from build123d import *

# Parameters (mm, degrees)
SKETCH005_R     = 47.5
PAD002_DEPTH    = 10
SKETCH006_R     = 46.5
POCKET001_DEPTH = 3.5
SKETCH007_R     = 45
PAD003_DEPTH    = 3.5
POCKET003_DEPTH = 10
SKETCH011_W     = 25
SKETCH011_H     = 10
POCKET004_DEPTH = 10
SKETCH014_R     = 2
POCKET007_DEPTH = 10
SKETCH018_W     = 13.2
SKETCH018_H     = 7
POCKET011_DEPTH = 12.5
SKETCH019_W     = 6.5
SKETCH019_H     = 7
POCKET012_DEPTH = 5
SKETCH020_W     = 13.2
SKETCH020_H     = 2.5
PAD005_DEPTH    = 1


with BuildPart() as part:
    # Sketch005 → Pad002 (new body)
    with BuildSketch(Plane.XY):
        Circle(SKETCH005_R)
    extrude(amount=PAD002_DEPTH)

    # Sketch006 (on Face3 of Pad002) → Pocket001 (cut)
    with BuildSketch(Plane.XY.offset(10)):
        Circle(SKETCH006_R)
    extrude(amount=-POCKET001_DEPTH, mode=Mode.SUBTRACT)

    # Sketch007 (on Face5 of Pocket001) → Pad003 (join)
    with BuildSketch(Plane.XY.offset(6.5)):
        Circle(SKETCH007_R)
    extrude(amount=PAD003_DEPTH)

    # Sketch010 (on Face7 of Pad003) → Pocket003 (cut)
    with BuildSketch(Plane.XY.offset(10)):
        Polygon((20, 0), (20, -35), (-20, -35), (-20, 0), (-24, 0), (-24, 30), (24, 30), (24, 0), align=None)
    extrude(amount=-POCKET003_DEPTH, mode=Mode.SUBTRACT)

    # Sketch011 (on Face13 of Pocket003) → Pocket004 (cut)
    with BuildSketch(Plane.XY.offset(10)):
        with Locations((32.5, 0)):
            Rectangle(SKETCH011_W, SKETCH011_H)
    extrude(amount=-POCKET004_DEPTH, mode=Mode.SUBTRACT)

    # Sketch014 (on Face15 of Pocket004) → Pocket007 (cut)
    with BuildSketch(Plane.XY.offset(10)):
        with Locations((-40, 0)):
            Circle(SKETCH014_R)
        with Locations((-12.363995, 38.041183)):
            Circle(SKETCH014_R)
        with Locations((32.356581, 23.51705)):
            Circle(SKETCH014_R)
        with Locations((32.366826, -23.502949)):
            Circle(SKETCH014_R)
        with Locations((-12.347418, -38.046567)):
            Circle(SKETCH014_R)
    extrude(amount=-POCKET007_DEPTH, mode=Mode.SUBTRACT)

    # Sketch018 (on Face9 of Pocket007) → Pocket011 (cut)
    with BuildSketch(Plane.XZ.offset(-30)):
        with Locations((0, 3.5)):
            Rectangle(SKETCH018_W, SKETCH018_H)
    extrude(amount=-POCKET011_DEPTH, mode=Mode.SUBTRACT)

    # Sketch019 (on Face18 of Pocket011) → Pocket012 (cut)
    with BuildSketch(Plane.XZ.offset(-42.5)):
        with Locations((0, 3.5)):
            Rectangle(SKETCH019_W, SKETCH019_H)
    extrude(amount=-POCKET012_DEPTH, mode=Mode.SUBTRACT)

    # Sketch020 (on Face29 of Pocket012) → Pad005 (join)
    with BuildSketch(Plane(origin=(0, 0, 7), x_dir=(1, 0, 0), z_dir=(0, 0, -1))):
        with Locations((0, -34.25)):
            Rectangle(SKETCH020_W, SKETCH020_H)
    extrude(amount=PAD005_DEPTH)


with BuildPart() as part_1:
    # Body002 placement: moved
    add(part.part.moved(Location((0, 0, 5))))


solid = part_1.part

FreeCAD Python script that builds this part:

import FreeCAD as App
import Part
import Sketcher
from FreeCAD import Vector

doc = App.newDocument("Part")
body = doc.addObject("PartDesign::Body", "Body")

# Sketch on XY plane
sketch1 = body.newObject("Sketcher::SketchObject", "Sketch")
sketch1.AttachmentSupport = (doc.getObject("XY_Plane"), [""])
sketch1.MapMode = "FlatFace"
sketch1.addGeometry(Part.Circle(Vector(0, 0, 0), Vector(0, 0, 1), 48), False)
sketch1.addConstraint([
    Sketcher.Constraint("Coincident", 0, 3, -1, 1),
    Sketcher.Constraint("Diameter", 0, 95.0),
])
pad1 = body.newObject("PartDesign::Pad", "Pad")
pad1.Profile = sketch1
pad1.Length = 10

# Sketch on XY plane
sketch2 = body.newObject("Sketcher::SketchObject", "Sketch001")
sketch2.AttachmentSupport = (doc.getObject("XY_Plane"), [""])
sketch2.MapMode = "FlatFace"
sketch2.AttachmentOffset = App.Placement(Vector(0, 0, 10), App.Rotation())
sketch2.addGeometry(Part.Circle(Vector(0, 0, 0), Vector(0, 0, 1), 46), False)
sketch2.addConstraint([
    Sketcher.Constraint("Coincident", 0, 3, -1, 1),
    Sketcher.Constraint("Diameter", 0, 93.0),
])
pocket1 = body.newObject("PartDesign::Pocket", "Pocket")
pocket1.Profile = sketch2
pocket1.Length = 3.5

# Sketch on XY plane
sketch3 = body.newObject("Sketcher::SketchObject", "Sketch002")
sketch3.AttachmentSupport = (doc.getObject("XY_Plane"), [""])
sketch3.MapMode = "FlatFace"
sketch3.AttachmentOffset = App.Placement(Vector(0, 0, 6.5), App.Rotation())
sketch3.addGeometry(Part.Circle(Vector(0, 0, 0), Vector(0, 0, 1), 45), False)
sketch3.addConstraint([
    Sketcher.Constraint("Coincident", 0, 3, -1, 1),
    Sketcher.Constraint("Diameter", 0, 90.0),
])
pad2 = body.newObject("PartDesign::Pad", "Pad001")
pad2.Profile = sketch3
pad2.Length = 3.5

# Sketch on XY plane
sketch4 = body.newObject("Sketcher::SketchObject", "Sketch003")
sketch4.AttachmentSupport = (doc.getObject("XY_Plane"), [""])
sketch4.MapMode = "FlatFace"
sketch4.AttachmentOffset = App.Placement(Vector(0, 0, 10), App.Rotation())
sketch4.addGeometry([
    Part.LineSegment(Vector(20, -35, 0), Vector(20, 0, 0)),  # 0
    Part.LineSegment(Vector(20, 0, 0), Vector(24, 0, 0)),  # 1
    Part.LineSegment(Vector(24, 0, 0), Vector(24, 30, 0)),  # 2
    Part.LineSegment(Vector(24, 30, 0), Vector(-24, 30, 0)),  # 3
    Part.LineSegment(Vector(-24, 30, 0), Vector(-24, 0, 0)),  # 4
    Part.LineSegment(Vector(-24, 0, 0), Vector(-20, 0, 0)),  # 5
    Part.LineSegment(Vector(-20, 0, 0), Vector(-20, -35, 0)),  # 6
    Part.LineSegment(Vector(-20, -35, 0), Vector(20, -35, 0)),  # 7
], False)
sketch4.addConstraint([
    Sketcher.Constraint("Coincident", 0, 2, 1, 1),
    Sketcher.Constraint("Coincident", 1, 2, 2, 1),
    Sketcher.Constraint("Coincident", 2, 2, 3, 1),
    Sketcher.Constraint("Coincident", 3, 2, 4, 1),
    Sketcher.Constraint("Coincident", 4, 2, 5, 1),
    Sketcher.Constraint("Coincident", 5, 2, 6, 1),
    Sketcher.Constraint("Coincident", 6, 2, 7, 1),
    Sketcher.Constraint("Coincident", 7, 2, 0, 1),
    Sketcher.Constraint("Vertical", 0),
    Sketcher.Constraint("Horizontal", 1),
    Sketcher.Constraint("Vertical", 2),
    Sketcher.Constraint("Horizontal", 3),
    Sketcher.Constraint("Vertical", 4),
    Sketcher.Constraint("Horizontal", 5),
    Sketcher.Constraint("Vertical", 6),
    Sketcher.Constraint("Horizontal", 7),
    Sketcher.Constraint("Symmetric", 1, 2, 4, 2, -1, 1),
    Sketcher.Constraint("Symmetric", 0, 2, 5, 2, -2),
    Sketcher.Constraint("DistanceX", 1, 1, 1, 2, 4.0),
    Sketcher.Constraint("DistanceX", 3, 2, 3, 1, 48.0),
    Sketcher.Constraint("DistanceY", 0, 1, 0, 2, 35.0),
    Sketcher.Constraint("DistanceY", 2, 1, 2, 2, 30.0),
])
pocket2 = body.newObject("PartDesign::Pocket", "Pocket001")
pocket2.Profile = sketch4
pocket2.Length = 10

# Sketch on XY plane
sketch5 = body.newObject("Sketcher::SketchObject", "Sketch004")
sketch5.AttachmentSupport = (doc.getObject("XY_Plane"), [""])
sketch5.MapMode = "FlatFace"
sketch5.AttachmentOffset = App.Placement(Vector(0, 0, 10), App.Rotation())
sketch5.addGeometry([
    Part.LineSegment(Vector(20, 5, 0), Vector(20, -5, 0)),
    Part.LineSegment(Vector(20, -5, 0), Vector(45, -5, 0)),
    Part.LineSegment(Vector(45, -5, 0), Vector(45, 5, 0)),
    Part.LineSegment(Vector(45, 5, 0), Vector(20, 5, 0)),
], False)
sketch5.addConstraint([
    Sketcher.Constraint("Coincident", 0, 2, 1, 1),
    Sketcher.Constraint("Coincident", 1, 2, 2, 1),
    Sketcher.Constraint("Coincident", 2, 2, 3, 1),
    Sketcher.Constraint("Coincident", 3, 2, 0, 1),
    Sketcher.Constraint("Vertical", 0),
    Sketcher.Constraint("Horizontal", 1),
    Sketcher.Constraint("Vertical", 2),
    Sketcher.Constraint("Horizontal", 3),
    Sketcher.Constraint("DistanceX", 1, 1, 1, 2, 25.0),
    Sketcher.Constraint("DistanceY", 0, 2, 0, 1, 10.0),
    Sketcher.Constraint("DistanceX", -1, 1, 0, 2, 20.0),
    Sketcher.Constraint("DistanceY", 0, 2, -1, 1, 5.0),
])
pocket3 = body.newObject("PartDesign::Pocket", "Pocket002")
pocket3.Profile = sketch5
pocket3.Length = 10

# Sketch on XY plane
sketch6 = body.newObject("Sketcher::SketchObject", "Sketch005")
sketch6.AttachmentSupport = (doc.getObject("XY_Plane"), [""])
sketch6.MapMode = "FlatFace"
sketch6.AttachmentOffset = App.Placement(Vector(0, 0, 10), App.Rotation())
sketch6.addGeometry([
    Part.Circle(Vector(-40, 0, 0), Vector(0, 0, 1), 2),  # 0
    Part.Circle(Vector(-12.4, 38, 0), Vector(0, 0, 1), 2),  # 1
    Part.Circle(Vector(32.4, 23.5, 0), Vector(0, 0, 1), 2),  # 2
    Part.Circle(Vector(32.4, -23.5, 0), Vector(0, 0, 1), 2),  # 3
    Part.Circle(Vector(-12.3, -38, 0), Vector(0, 0, 1), 2),  # 4
], False)
sketch6.addConstraint([
    Sketcher.Constraint("Equal", 0, 1),
    Sketcher.Constraint("Equal", 1, 2),
    Sketcher.Constraint("Equal", 2, 3),
    Sketcher.Constraint("Equal", 3, 4),
    Sketcher.Constraint("PointOnObject", 0, 3, -1),
    Sketcher.Constraint("Diameter", 0, 4.0),
    Sketcher.Constraint("DistanceX", 0, 3, -1, 1, 40.0),
    Sketcher.Constraint("DistanceY", 3, 3, 2, 3, 47.019999),
    Sketcher.Constraint("DistanceX", 4, 3, 2, 3, 44.703999),
    Sketcher.Constraint("DistanceX", -1, 1, 2, 3, 32.356581),
    Sketcher.Constraint("DistanceY", -1, 1, 2, 3, 23.51705),
    Sketcher.Constraint("DistanceX", 1, 3, 3, 3, 44.730821),
    Sketcher.Constraint("DistanceY", 3, 3, 1, 3, 61.544132),
    Sketcher.Constraint("DistanceY", 4, 3, 3, 3, 14.543618),
    Sketcher.Constraint("DistanceX", 1, 3, -1, 1, 12.363995),
])
pocket4 = body.newObject("PartDesign::Pocket", "Pocket003")
pocket4.Profile = sketch6
pocket4.Length = 10

# Sketch on XZ plane
sketch7 = body.newObject("Sketcher::SketchObject", "Sketch006")
sketch7.AttachmentSupport = (doc.getObject("XZ_Plane"), [""])
sketch7.MapMode = "FlatFace"
sketch7.AttachmentOffset = App.Placement(Vector(0, 0, -30), App.Rotation())
sketch7.addGeometry([
    Part.LineSegment(Vector(-7, 7, 0), Vector(-7, 0, 0)),
    Part.LineSegment(Vector(-7, 0, 0), Vector(7, 0, 0)),
    Part.LineSegment(Vector(7, 0, 0), Vector(7, 7, 0)),
    Part.LineSegment(Vector(7, 7, 0), Vector(-7, 7, 0)),
], False)
sketch7.addConstraint([
    Sketcher.Constraint("Coincident", 0, 2, 1, 1),
    Sketcher.Constraint("Coincident", 1, 2, 2, 1),
    Sketcher.Constraint("Coincident", 2, 2, 3, 1),
    Sketcher.Constraint("Coincident", 3, 2, 0, 1),
    Sketcher.Constraint("Vertical", 0),
    Sketcher.Constraint("Horizontal", 1),
    Sketcher.Constraint("Vertical", 2),
    Sketcher.Constraint("Horizontal", 3),
    Sketcher.Constraint("Symmetric", 0, 2, 1, 2, -1, 1),
    Sketcher.Constraint("DistanceY", 0, 2, 0, 1, 7.0),
    Sketcher.Constraint("DistanceX", 1, 1, 1, 2, 13.2),
])
pocket5 = body.newObject("PartDesign::Pocket", "Pocket004")
pocket5.Profile = sketch7
pocket5.Length = 12.5

# Sketch on XZ plane
sketch8 = body.newObject("Sketcher::SketchObject", "Sketch007")
sketch8.AttachmentSupport = (doc.getObject("XZ_Plane"), [""])
sketch8.MapMode = "FlatFace"
sketch8.AttachmentOffset = App.Placement(Vector(0, 0, -42.5), App.Rotation())
sketch8.addGeometry([
    Part.LineSegment(Vector(-3, 7, 0), Vector(-3, 0, 0)),
    Part.LineSegment(Vector(-3, 0, 0), Vector(3, 0, 0)),
    Part.LineSegment(Vector(3, 0, 0), Vector(3, 7, 0)),
    Part.LineSegment(Vector(3, 7, 0), Vector(-3, 7, 0)),
], False)
sketch8.addConstraint([
    Sketcher.Constraint("Coincident", 0, 2, 1, 1),
    Sketcher.Constraint("Coincident", 1, 2, 2, 1),
    Sketcher.Constraint("Coincident", 2, 2, 3, 1),
    Sketcher.Constraint("Coincident", 3, 2, 0, 1),
    Sketcher.Constraint("Vertical", 0),
    Sketcher.Constraint("Horizontal", 1),
    Sketcher.Constraint("Vertical", 2),
    Sketcher.Constraint("Horizontal", 3),
    Sketcher.Constraint("Symmetric", 0, 2, 1, 2, -1, 1),
    Sketcher.Constraint("DistanceY", 0, 2, 0, 1, 7.0),
    Sketcher.Constraint("DistanceX", 1, 1, 1, 2, 6.5),
])
pocket6 = body.newObject("PartDesign::Pocket", "Pocket005")
pocket6.Profile = sketch8
pocket6.Length = 5

# Sketch on XY plane
sketch9 = body.newObject("Sketcher::SketchObject", "Sketch008")
sketch9.AttachmentSupport = (doc.getObject("XY_Plane"), [""])
sketch9.MapMode = "FlatFace"
sketch9.AttachmentOffset = App.Placement(Vector(0, 0, 7), App.Rotation())
sketch9.addGeometry([
    Part.LineSegment(Vector(-6.6, 33, 0), Vector(-6.6, 35.5, 0)),
    Part.LineSegment(Vector(-6.6, 35.5, 0), Vector(6.6, 35.5, 0)),
    Part.LineSegment(Vector(6.6, 35.5, 0), Vector(6.6, 33, 0)),
    Part.LineSegment(Vector(6.6, 33, 0), Vector(-6.6, 33, 0)),
], False)
sketch9.addConstraint([
    Sketcher.Constraint("Coincident", 0, 2, 1, 1),
    Sketcher.Constraint("Coincident", 1, 2, 2, 1),
    Sketcher.Constraint("Coincident", 2, 2, 3, 1),
    Sketcher.Constraint("Coincident", 3, 2, 0, 1),
    Sketcher.Constraint("Vertical", 0),
    Sketcher.Constraint("Horizontal", 1),
    Sketcher.Constraint("Vertical", 2),
    Sketcher.Constraint("Horizontal", 3),
    Sketcher.Constraint("DistanceX", 1, 1, 1, 2, 13.2),
    Sketcher.Constraint("DistanceY", 0, 1, 0, 2, 2.5),
    Sketcher.Constraint("DistanceY", -1, 1, 2, 2, 33.0),
    Sketcher.Constraint("DistanceX", 0, 2, -1, 1, 6.6),
])
pad3 = body.newObject("PartDesign::Pad", "Pad002")
pad3.Profile = sketch9
pad3.Length = 1
pad3.Reversed = True
body2 = doc.addObject("PartDesign::Body", "Body001")
doc.recompute()

body.Placement = App.Placement(Vector(0, 0, 5), App.Rotation(Vector(0, 0, 1), 0))
boolean = body2.newObject("PartDesign::Boolean", "Boolean")
boolean.Type = "Fuse"
boolean.addObjects([body])

doc.recompute()
